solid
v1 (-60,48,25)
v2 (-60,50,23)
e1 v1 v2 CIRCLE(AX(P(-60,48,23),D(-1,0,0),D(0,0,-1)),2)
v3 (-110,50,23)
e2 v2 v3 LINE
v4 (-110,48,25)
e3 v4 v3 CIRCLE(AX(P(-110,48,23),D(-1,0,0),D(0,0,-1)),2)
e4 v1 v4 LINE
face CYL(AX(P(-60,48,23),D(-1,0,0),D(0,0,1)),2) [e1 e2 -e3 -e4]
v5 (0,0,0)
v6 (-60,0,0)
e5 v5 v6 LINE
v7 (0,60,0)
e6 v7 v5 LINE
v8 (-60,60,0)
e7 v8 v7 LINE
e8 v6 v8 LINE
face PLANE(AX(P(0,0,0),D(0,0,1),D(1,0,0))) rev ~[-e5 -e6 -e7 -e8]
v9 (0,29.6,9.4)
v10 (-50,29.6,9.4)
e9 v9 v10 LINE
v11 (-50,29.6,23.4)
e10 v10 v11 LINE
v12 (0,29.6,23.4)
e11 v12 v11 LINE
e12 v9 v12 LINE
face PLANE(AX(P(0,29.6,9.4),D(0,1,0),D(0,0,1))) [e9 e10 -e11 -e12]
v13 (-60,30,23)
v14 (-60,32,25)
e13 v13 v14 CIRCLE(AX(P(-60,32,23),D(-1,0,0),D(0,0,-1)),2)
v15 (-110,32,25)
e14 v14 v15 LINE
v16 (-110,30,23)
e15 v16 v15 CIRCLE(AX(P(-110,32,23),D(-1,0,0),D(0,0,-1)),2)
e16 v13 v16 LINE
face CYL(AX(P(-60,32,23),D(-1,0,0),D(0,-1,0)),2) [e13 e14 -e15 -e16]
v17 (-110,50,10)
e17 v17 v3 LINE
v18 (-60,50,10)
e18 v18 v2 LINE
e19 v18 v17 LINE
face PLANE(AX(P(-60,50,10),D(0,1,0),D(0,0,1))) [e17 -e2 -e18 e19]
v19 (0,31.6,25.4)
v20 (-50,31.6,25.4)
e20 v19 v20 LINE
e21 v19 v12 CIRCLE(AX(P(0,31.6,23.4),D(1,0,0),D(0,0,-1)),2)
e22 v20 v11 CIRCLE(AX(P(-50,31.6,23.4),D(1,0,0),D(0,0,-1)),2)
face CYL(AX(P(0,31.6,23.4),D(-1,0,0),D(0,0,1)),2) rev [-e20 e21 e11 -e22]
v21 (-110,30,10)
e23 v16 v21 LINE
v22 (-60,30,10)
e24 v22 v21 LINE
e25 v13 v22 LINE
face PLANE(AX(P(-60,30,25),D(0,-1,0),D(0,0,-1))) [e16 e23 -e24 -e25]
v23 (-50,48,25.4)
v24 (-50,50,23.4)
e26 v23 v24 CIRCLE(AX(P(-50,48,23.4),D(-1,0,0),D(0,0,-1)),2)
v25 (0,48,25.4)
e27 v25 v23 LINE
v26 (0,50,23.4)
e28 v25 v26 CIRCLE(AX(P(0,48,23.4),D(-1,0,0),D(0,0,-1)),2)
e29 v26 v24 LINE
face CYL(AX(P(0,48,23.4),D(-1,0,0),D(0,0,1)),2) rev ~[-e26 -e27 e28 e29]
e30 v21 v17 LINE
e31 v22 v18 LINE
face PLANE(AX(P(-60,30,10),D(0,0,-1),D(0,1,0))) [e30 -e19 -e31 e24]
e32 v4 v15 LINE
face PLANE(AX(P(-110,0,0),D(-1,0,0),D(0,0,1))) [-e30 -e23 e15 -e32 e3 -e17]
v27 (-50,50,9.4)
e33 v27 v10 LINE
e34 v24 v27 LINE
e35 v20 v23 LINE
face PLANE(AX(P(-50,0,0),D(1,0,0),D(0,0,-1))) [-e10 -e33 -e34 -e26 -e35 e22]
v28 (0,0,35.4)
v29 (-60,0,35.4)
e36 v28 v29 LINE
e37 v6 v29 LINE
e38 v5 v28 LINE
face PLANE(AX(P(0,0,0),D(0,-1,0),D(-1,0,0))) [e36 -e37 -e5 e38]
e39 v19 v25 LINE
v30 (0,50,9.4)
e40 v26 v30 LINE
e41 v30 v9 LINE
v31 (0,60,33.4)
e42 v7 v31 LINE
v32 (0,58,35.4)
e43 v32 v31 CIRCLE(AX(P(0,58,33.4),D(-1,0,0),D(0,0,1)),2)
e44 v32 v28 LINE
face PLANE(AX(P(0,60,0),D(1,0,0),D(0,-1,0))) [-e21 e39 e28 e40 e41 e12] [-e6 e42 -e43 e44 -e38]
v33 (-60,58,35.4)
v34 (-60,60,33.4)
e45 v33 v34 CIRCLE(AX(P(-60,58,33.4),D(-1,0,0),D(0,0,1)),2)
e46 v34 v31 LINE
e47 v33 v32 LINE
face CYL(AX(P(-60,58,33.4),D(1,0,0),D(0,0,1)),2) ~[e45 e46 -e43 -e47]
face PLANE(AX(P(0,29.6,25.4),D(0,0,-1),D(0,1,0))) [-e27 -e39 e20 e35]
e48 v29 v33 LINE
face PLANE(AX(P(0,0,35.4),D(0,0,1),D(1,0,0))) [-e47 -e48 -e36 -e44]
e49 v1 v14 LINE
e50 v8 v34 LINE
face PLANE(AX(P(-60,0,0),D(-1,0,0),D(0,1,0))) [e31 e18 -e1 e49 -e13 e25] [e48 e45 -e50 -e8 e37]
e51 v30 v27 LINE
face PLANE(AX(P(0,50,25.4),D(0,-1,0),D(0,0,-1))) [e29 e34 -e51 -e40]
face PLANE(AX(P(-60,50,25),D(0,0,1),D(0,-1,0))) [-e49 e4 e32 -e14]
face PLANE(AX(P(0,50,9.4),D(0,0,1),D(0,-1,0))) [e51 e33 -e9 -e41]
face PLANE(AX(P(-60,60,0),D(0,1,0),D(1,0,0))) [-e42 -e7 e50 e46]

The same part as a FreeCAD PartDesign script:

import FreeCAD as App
import Part
import Sketcher

V = App.Vector
Q = App.Units.Quantity


def edges_at(feature, points):
    """Names of the edges that pass closest to the given points."""
    edges = feature.Shape.Edges
    near = lambda p: min(range(len(edges)), key=lambda i: edges[i].distToShape(Part.Vertex(*p))[0])
    return sorted({f"Edge{near(p) + 1}" for p in points})


def add_polygon(sketch, points):
    """Adds a closed chain of lines whose ends are joined by coincident constraints."""
    first, n = sketch.GeometryCount, len(points)
    for a, b in zip(points, points[1:] + points[:1]):
        sketch.addGeometry(Part.LineSegment(App.Vector(*a, 0), App.Vector(*b, 0)), False)
    for i in range(n):
        sketch.addConstraint(Sketcher.Constraint("Coincident", first + i, 2, first + (i + 1) % n, 1))

doc = App.newDocument("Part")
body = doc.addObject("PartDesign::Body", "Body")

# Sketch on XY plane
sketch1 = doc.addObject("Sketcher::SketchObject", "Sketch")
body.addObject(sketch1)
sketch1.AttachmentSupport = (doc.XY_Plane, [""])
sketch1.MapMode = "FlatFace"
add_polygon(sketch1, [(-60, 0), (0, 0), (0, 60), (-60, 60)])  # lines 0-3
sketch1.addConstraint(Sketcher.Constraint("Horizontal", 0))
sketch1.addConstraint(Sketcher.Constraint("Vertical", 1))
sketch1.addConstraint(Sketcher.Constraint("Horizontal", 2))
sketch1.addConstraint(Sketcher.Constraint("Vertical", 3))
sketch1.addConstraint(Sketcher.Constraint("Coincident", 0, 2, -1, 1))
sketch1.addConstraint(Sketcher.Constraint("Equal", 2, 1))
sketch1.addConstraint(Sketcher.Constraint("DistanceX", 0, 1, 0, 2, Q("60 mm")))
pad1 = doc.addObject("PartDesign::Pad", "Pad")
body.addObject(pad1)
pad1.Profile = sketch1
pad1.Length = 35.4

# Sketch on YZ plane
sketch2 = doc.addObject("Sketcher::SketchObject", "Sketch001")
body.addObject(sketch2)
sketch2.AttachmentSupport = (doc.YZ_Plane, [""])
sketch2.MapMode = "FlatFace"
add_polygon(sketch2, [(50, 9), (50, 25), (30, 25), (30, 9)])  # lines 0-3
sketch2.addConstraint(Sketcher.Constraint("Vertical", 0))
sketch2.addConstraint(Sketcher.Constraint("Horizontal", 1))
sketch2.addConstraint(Sketcher.Constraint("Vertical", 2))
sketch2.addConstraint(Sketcher.Constraint("Horizontal", 3))
sketch2.addConstraint(Sketcher.Constraint("DistanceY", 0, 1, 0, 2, Q("16 mm")))
sketch2.addConstraint(Sketcher.Constraint("DistanceX", 1, 2, 1, 1, Q("20.4 mm")))
sketch2.addConstraint(Sketcher.Constraint("DistanceX", -1, 1, 0, 2, Q("50 mm")))
sketch2.addConstraint(Sketcher.Constraint("DistanceY", -1, 1, 0, 2, Q("25.4 mm")))
pocket1 = doc.addObject("PartDesign::Pocket", "Pocket")
body.addObject(pocket1)
pocket1.Profile = sketch2
pocket1.Length = 50

# Sketch on YZ plane
sketch3 = doc.addObject("Sketcher::SketchObject", "Sketch002")
body.addObject(sketch3)
sketch3.AttachmentSupport = (doc.YZ_Plane, [""])
sketch3.MapMode = "FlatFace"
sketch3.AttachmentOffset = App.Placement(V(0, 0, -60), App.Rotation())
add_polygon(sketch3, [(50, 25), (50, 10), (30, 10), (30, 25)])  # lines 0-3
sketch3.addConstraint(Sketcher.Constraint("Vertical", 0))
sketch3.addConstraint(Sketcher.Constraint("Horizontal", 1))
sketch3.addConstraint(Sketcher.Constraint("Vertical", 2))
sketch3.addConstraint(Sketcher.Constraint("Horizontal", 3))
sketch3.addConstraint(Sketcher.Constraint("DistanceX", 1, 2, 1, 1, Q("20 mm")))
sketch3.addConstraint(Sketcher.Constraint("DistanceY", 0, 2, 0, 1, Q("15 mm")))
sketch3.addConstraint(Sketcher.Constraint("DistanceY", -1, 1, 0, 2, Q("10 mm")))
sketch3.addConstraint(Sketcher.Constraint("DistanceX", -1, 1, 0, 2, Q("50 mm")))
pad2 = doc.addObject("PartDesign::Pad", "Pad001")
body.addObject(pad2)
pad2.Profile = sketch3
pad2.Length = 50
pad2.Reversed = True
doc.recompute()

fillet = doc.addObject("PartDesign::Fillet", "Fillet")
body.addObject(fillet)
fillet.Base = (pad2, edges_at(pad2, [
    (-85, 50, 25),
    (-85, 30, 25),
    (-30, 60, 35.4),
    (-25, 29.6, 25.4),
    (-25, 50, 25.4),
]))
fillet.Radius = 2

doc.recompute()
